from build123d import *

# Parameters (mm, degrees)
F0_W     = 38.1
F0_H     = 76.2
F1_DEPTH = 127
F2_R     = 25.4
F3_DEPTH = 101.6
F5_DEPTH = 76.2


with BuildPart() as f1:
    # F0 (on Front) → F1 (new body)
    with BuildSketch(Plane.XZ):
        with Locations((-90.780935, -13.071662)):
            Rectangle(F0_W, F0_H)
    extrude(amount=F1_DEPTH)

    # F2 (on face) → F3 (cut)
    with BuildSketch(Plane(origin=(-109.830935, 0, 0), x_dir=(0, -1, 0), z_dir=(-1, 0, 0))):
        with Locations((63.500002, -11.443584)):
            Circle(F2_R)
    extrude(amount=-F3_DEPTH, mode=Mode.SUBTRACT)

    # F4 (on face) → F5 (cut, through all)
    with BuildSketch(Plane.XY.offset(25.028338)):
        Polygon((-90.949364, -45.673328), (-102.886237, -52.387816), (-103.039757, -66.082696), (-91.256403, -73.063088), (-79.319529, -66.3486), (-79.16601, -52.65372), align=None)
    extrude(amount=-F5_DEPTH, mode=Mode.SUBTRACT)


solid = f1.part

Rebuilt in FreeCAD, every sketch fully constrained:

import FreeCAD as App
import Part
import Sketcher

V = App.Vector
Q = App.Units.Quantity

doc = App.newDocument("Part")
params = doc.addObject("Spreadsheet::Sheet", "Params")
for row, (alias, value) in enumerate([
    ("sketch1_height", "3 in"),
    ("sketch1_width", "1.5 in"),
    ("pad1_length", "5 in"),
    ("sketch2_diameter", "2 in"),
    ("pocket1_length", "4 in"),
], start=1):
    params.set(f"A{row}", alias)
    params.set(f"B{row}", "=" + value)
    params.setAlias(f"B{row}", alias)

body = doc.addObject("PartDesign::Body", "Body")

sketch1 = body.newObject("Sketcher::SketchObject", "Sketch")
sketch1.AttachmentSupport = (doc.getObject("XZ_Plane"), [""])
sketch1.MapMode = "FlatFace"
sketch1.addGeometry([
    Part.LineSegment(V(-109.830935, 25.028338, 0), V(-109.830935, -51.171662, 0)),
    Part.LineSegment(V(-109.830935, -51.171662, 0), V(-71.730935, -51.171662, 0)),
    Part.LineSegment(V(-71.730935, -51.171662, 0), V(-71.730935, 25.028338, 0)),
    Part.LineSegment(V(-71.730935, 25.028338, 0), V(-109.830935, 25.028338, 0)),
], False)
sketch1.addConstraint([
    Sketcher.Constraint("Coincident", 0, 2, 1, 1),
    Sketcher.Constraint("Coincident", 1, 2, 2, 1),
    Sketcher.Constraint("Coincident", 2, 2, 3, 1),
    Sketcher.Constraint("Coincident", 3, 2, 0, 1),
    Sketcher.Constraint("Vertical", 0),
    Sketcher.Constraint("Horizontal", 1),
    Sketcher.Constraint("Vertical", 2),
    Sketcher.Constraint("Horizontal", 3),
    Sketcher.Constraint("DistanceY", 0, 2, 0, 1, Q("3 in")),
    Sketcher.Constraint("DistanceX", 1, 1, 1, 2, Q("1.5 in")),
    Sketcher.Constraint("DistanceY", 0, 2, -1, 1, 51.171662),
    Sketcher.Constraint("DistanceX", 0, 2, -1, 1, 109.830935),
])
sketch1.setExpression("Constraints[8]", "Params.sketch1_height")
sketch1.setExpression("Constraints[9]", "Params.sketch1_width")
pad1 = body.newObject("PartDesign::Pad", "Pad")
pad1.Profile = sketch1
pad1.setExpression("Length", "Params.pad1_length")

sketch2 = body.newObject("Sketcher::SketchObject", "Sketch001")
sketch2.AttachmentSupport = (doc.getObject("YZ_Plane"), [""])
sketch2.MapMode = "FlatFace"
sketch2.AttachmentOffset = App.Placement(V(0, 0, -109.830935), App.Rotation())
sketch2.addGeometry(Part.Circle(V(-63.500002, -11.443584, 0), V(0, 0, 1), 25.4), False)
sketch2.addConstraint([
    Sketcher.Constraint("Diameter", 0, Q("2 in")),
    Sketcher.Constraint("DistanceX", 0, 3, -1, 1, Q("2.5000001 in")),
    Sketcher.Constraint("DistanceY", 0, 3, -1, 1, 11.443584),
])
sketch2.setExpression("Constraints[0]", "Params.sketch2_diameter")
pocket1 = body.newObject("PartDesign::Pocket", "Pocket")
pocket1.Profile = sketch2
pocket1.setExpression("Length", "Params.pocket1_length")
pocket1.Reversed = True

sketch3 = body.newObject("Sketcher::SketchObject", "Sketch002")
sketch3.AttachmentSupport = (doc.getObject("XY_Plane"), [""])
sketch3.MapMode = "FlatFace"
sketch3.AttachmentOffset = App.Placement(V(0, 0, 25.028338), App.Rotation())
sketch3.addGeometry([
    Part.LineSegment(V(-90.949364, -45.673328, 0), V(-102.886237, -52.387816, 0)),
    Part.LineSegment(V(-102.886237, -52.387816, 0), V(-103.039757, -66.082696, 0)),
    Part.LineSegment(V(-103.039757, -66.082696, 0), V(-91.256403, -73.063088, 0)),
    Part.LineSegment(V(-91.256403, -73.063088, 0), V(-79.319529, -66.3486, 0)),
    Part.LineSegment(V(-79.319529, -66.3486, 0), V(-79.16601, -52.65372, 0)),
    Part.LineSegment(V(-79.16601, -52.65372, 0), V(-90.949364, -45.673328, 0)),
], False)
sketch3.addConstraint([
    Sketcher.Constraint("Coincident", 0, 2, 1, 1),
    Sketcher.Constraint("Coincident", 1, 2, 2, 1),
    Sketcher.Constraint("Coincident", 2, 2, 3, 1),
    Sketcher.Constraint("Coincident", 3, 2, 4, 1),
    Sketcher.Constraint("Coincident", 4, 2, 5, 1),
    Sketcher.Constraint("Coincident", 5, 2, 0, 1),
    Sketcher.Constraint("Parallel", 0, 3),
    Sketcher.Constraint("Parallel", 1, 4),
    Sketcher.Constraint("Parallel", 2, 5),
    Sketcher.Constraint("Equal", 0, 1),
    Sketcher.Constraint("Equal", 1, 2),
    Sketcher.Constraint("Equal", 2, 3),
    Sketcher.Constraint("DistanceY", 1, 2, 4, 2, Q("0.5286998 in")),
    Sketcher.Constraint("DistanceY", 3, 2, -1, 1, 66.3486),
    Sketcher.Constraint("Distance", 0, 13.69574),
    Sketcher.Constraint("DistanceX", 3, 2, -1, 1, 79.319529),
    Sketcher.Constraint("DistanceX", 4, 2, -1, 1, 79.16601),
    Sketcher.Constraint("DistanceY", 2, 2, 1, 2, 6.980392),
])
pocket2 = body.newObject("PartDesign::Pocket", "Pocket001")
pocket2.Profile = sketch3
pocket2.Type = "ThroughAll"

doc.recompute()
